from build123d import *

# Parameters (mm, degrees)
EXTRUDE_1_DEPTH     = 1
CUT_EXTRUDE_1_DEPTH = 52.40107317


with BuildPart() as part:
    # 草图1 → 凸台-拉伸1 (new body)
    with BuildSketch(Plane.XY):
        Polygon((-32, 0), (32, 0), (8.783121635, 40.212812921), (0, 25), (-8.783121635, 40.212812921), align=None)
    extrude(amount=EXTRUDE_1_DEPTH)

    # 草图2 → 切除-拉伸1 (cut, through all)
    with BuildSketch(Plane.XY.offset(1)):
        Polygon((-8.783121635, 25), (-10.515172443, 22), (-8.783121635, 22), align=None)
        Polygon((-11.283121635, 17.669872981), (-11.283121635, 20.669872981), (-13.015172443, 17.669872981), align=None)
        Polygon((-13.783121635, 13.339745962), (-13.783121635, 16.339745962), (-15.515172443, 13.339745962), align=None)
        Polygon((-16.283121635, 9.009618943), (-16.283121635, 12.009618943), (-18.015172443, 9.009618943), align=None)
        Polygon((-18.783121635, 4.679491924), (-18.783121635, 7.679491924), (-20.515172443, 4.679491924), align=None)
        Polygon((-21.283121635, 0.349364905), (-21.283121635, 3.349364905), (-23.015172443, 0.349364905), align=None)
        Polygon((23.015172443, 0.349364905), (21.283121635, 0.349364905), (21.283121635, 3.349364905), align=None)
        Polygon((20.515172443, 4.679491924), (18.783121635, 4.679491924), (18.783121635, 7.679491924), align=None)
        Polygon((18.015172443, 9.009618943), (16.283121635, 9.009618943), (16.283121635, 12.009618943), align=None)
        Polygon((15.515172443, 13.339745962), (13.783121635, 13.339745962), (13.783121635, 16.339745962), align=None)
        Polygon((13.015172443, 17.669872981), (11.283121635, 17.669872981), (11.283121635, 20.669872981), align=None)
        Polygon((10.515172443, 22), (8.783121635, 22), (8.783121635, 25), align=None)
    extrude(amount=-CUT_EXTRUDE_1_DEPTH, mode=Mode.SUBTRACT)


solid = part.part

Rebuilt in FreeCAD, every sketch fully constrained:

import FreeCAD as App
import Part
import Sketcher

V = App.Vector
Q = App.Units.Quantity

doc = App.newDocument("Part")
body = doc.addObject("PartDesign::Body", "Body")

sketch1 = doc.addObject("Sketcher::SketchObject", "Sketch")
body.addObject(sketch1)
sketch1.AttachmentSupport = (doc.XY_Plane, [""])
sketch1.MapMode = "FlatFace"
sketch1.addGeometry([
    Part.LineSegment(V(-32, 0, 0), V(32, 0, 0)),
    Part.LineSegment(V(32, 0, 0), V(9, 40, 0)),
    Part.LineSegment(V(9, 40, 0), V(0, 25, 0)),
    Part.LineSegment(V(0, 25, 0), V(-9, 40, 0)),
    Part.LineSegment(V(-9, 40, 0), V(-32, 0, 0)),
], False)
sketch1.addConstraint([
    Sketcher.Constraint("Coincident", 0, 2, 1, 1),
    Sketcher.Constraint("Coincident", 1, 2, 2, 1),
    Sketcher.Constraint("Coincident", 2, 2, 3, 1),
    Sketcher.Constraint("Coincident", 3, 2, 4, 1),
    Sketcher.Constraint("Coincident", 4, 2, 0, 1),
    Sketcher.Constraint("Horizontal", 0),
    Sketcher.Constraint("Symmetric", 0, 2, 4, 2, -1, 1),
    Sketcher.Constraint("Symmetric", 1, 2, 3, 2, -2),
    Sketcher.Constraint("PointOnObject", 2, 2, -2),
    Sketcher.Constraint("Parallel", 1, 3),
    Sketcher.Constraint("DistanceX", 0, 1, 0, 2, Q("64 mm")),
    Sketcher.Constraint("Angle", 1, Q("120 deg")),
    Sketcher.Constraint("DistanceY", -1, 1, 2, 2, Q("25 mm")),
])
pad1 = doc.addObject("PartDesign::Pad", "Pad")
body.addObject(pad1)
pad1.Profile = sketch1
pad1.Length = 1

sketch2 = doc.addObject("Sketcher::SketchObject", "Sketch001")
body.addObject(sketch2)
sketch2.AttachmentSupport = (doc.XY_Plane, [""])
sketch2.MapMode = "FlatFace"
sketch2.AttachmentOffset = App.Placement(V(0, 0, 1), App.Rotation())
sketch2.addGeometry([
    Part.LineSegment(V(-8.8, 25, 0), V(-10.5, 22, 0)),
    Part.LineSegment(V(-10.5, 22, 0), V(-8.8, 22, 0)),
    Part.LineSegment(V(-8.8, 22, 0), V(-8.8, 25, 0)),
    Part.LineSegment(V(-11.3, 17.7, 0), V(-11.3, 20.7, 0)),
    Part.LineSegment(V(-11.3, 20.7, 0), V(-13, 17.7, 0)),
    Part.LineSegment(V(-13, 17.7, 0), V(-11.3, 17.7, 0)),
    Part.LineSegment(V(-13.8, 13.3, 0), V(-13.8, 16.3, 0)),
    Part.LineSegment(V(-13.8, 16.3, 0), V(-15.5, 13.3, 0)),
    Part.LineSegment(V(-15.5, 13.3, 0), V(-13.8, 13.3, 0)),
    Part.LineSegment(V(-16.3, 9, 0), V(-16.3, 12, 0)),
    Part.LineSegment(V(-16.3, 12, 0), V(-18, 9, 0)),
    Part.LineSegment(V(-18, 9, 0), V(-16.3, 9, 0)),
    Part.LineSegment(V(-18.8, 4.7, 0), V(-18.8, 7.7, 0)),
    Part.LineSegment(V(-18.8, 7.7, 0), V(-20.5, 4.7, 0)),
    Part.LineSegment(V(-20.5, 4.7, 0), V(-18.8, 4.7, 0)),
    Part.LineSegment(V(-21.3, 0.3, 0), V(-21.3, 3.3, 0)),
    Part.LineSegment(V(-21.3, 3.3, 0), V(-23, 0.3, 0)),
    Part.LineSegment(V(-23, 0.3, 0), V(-21.3, 0.3, 0)),
    Part.LineSegment(V(21.3, 0.3, 0), V(23, 0.3, 0)),
    Part.LineSegment(V(23, 0.3, 0), V(21.3, 3.3, 0)),
    Part.LineSegment(V(21.3, 3.3, 0), V(21.3, 0.3, 0)),
    Part.LineSegment(V(18.8, 4.7, 0), V(20.5, 4.7, 0)),
    Part.LineSegment(V(20.5, 4.7, 0), V(18.8, 7.7, 0)),
    Part.LineSegment(V(18.8, 7.7, 0), V(18.8, 4.7, 0)),
    Part.LineSegment(V(16.3, 9, 0), V(18, 9, 0)),
    Part.LineSegment(V(18, 9, 0), V(16.3, 12, 0)),
    Part.LineSegment(V(16.3, 12, 0), V(16.3, 9, 0)),
    Part.LineSegment(V(13.8, 13.3, 0), V(15.5, 13.3, 0)),
    Part.LineSegment(V(15.5, 13.3, 0), V(13.8, 16.3, 0)),
    Part.LineSegment(V(13.8, 16.3, 0), V(13.8, 13.3, 0)),
    Part.LineSegment(V(11.3, 17.7, 0), V(13, 17.7, 0)),
    Part.LineSegment(V(13, 17.7, 0), V(11.3, 20.7, 0)),
    Part.LineSegment(V(11.3, 20.7, 0), V(11.3, 17.7, 0)),
    Part.LineSegment(V(8.8, 22, 0), V(10.5, 22, 0)),
    Part.LineSegment(V(10.5, 22, 0), V(8.8, 25, 0)),
    Part.LineSegment(V(8.8, 25, 0), V(8.8, 22, 0)),
], False)
sketch2.addConstraint([
    Sketcher.Constraint("Coincident", 0, 2, 1, 1),
    Sketcher.Constraint("Coincident", 1, 2, 2, 1),
    Sketcher.Constraint("Coincident", 2, 2, 0, 1),
    Sketcher.Constraint("Coincident", 3, 2, 4, 1),
    Sketcher.Constraint("Coincident", 4, 2, 5, 1),
    Sketcher.Constraint("Coincident", 5, 2, 3, 1),
    Sketcher.Constraint("Coincident", 6, 2, 7, 1),
    Sketcher.Constraint("Coincident", 7, 2, 8, 1),
    Sketcher.Constraint("Coincident", 8, 2, 6, 1),
    Sketcher.Constraint("Coincident", 9, 2, 10, 1),
    Sketcher.Constraint("Coincident", 10, 2, 11, 1),
    Sketcher.Constraint("Coincident", 11, 2, 9, 1),
    Sketcher.Constraint("Coincident", 12, 2, 13, 1),
    Sketcher.Constraint("Coincident", 13, 2, 14, 1),
    Sketcher.Constraint("Coincident", 14, 2, 12, 1),
    Sketcher.Constraint("Coincident", 15, 2, 16, 1),
    Sketcher.Constraint("Coincident", 16, 2, 17, 1),
    Sketcher.Constraint("Coincident", 17, 2, 15, 1),
    Sketcher.Constraint("Coincident", 18, 2, 19, 1),
    Sketcher.Constraint("Coincident", 19, 2, 20, 1),
    Sketcher.Constraint("Coincident", 20, 2, 18, 1),
    Sketcher.Constraint("Coincident", 21, 2, 22, 1),
    Sketcher.Constraint("Coincident", 22, 2, 23, 1),
    Sketcher.Constraint("Coincident", 23, 2, 21, 1),
    Sketcher.Constraint("Coincident", 24, 2, 25, 1),
    Sketcher.Constraint("Coincident", 25, 2, 26, 1),
    Sketcher.Constraint("Coincident", 26, 2, 24, 1),
    Sketcher.Constraint("Coincident", 27, 2, 28, 1),
    Sketcher.Constraint("Coincident", 28, 2, 29, 1),
    Sketcher.Constraint("Coincident", 29, 2, 27, 1),
    Sketcher.Constraint("Coincident", 30, 2, 31, 1),
    Sketcher.Constraint("Coincident", 31, 2, 32, 1),
    Sketcher.Constraint("Coincident", 32, 2, 30, 1),
    Sketcher.Constraint("Coincident", 33, 2, 34, 1),
    Sketcher.Constraint("Coincident", 34, 2, 35, 1),
    Sketcher.Constraint("Coincident", 35, 2, 33, 1),
    Sketcher.Constraint("Horizontal", 1),
    Sketcher.Constraint("Vertical", 2),
    Sketcher.Constraint("Vertical", 3),
    Sketcher.Constraint("Horizontal", 5),
    Sketcher.Constraint("Vertical", 6),
    Sketcher.Constraint("Horizontal", 8),
    Sketcher.Constraint("Vertical", 9),
    Sketcher.Constraint("Horizontal", 11),
    Sketcher.Constraint("Vertical", 12),
    Sketcher.Constraint("Horizontal", 14),
    Sketcher.Constraint("Vertical", 15),
    Sketcher.Constraint("Horizontal", 17),
    Sketcher.Constraint("Horizontal", 18),
    Sketcher.Constraint("Vertical", 20),
    Sketcher.Constraint("Horizontal", 21),
    Sketcher.Constraint("Vertical", 23),
    Sketcher.Constraint("Horizontal", 24),
    Sketcher.Constraint("Vertical", 26),
    Sketcher.Constraint("Horizontal", 27),
    Sketcher.Constraint("Vertical", 29),
    Sketcher.Constraint("Horizontal", 30),
    Sketcher.Constraint("Vertical", 32),
    Sketcher.Constraint("Horizontal", 33),
    Sketcher.Constraint("Vertical", 35),
    Sketcher.Constraint("Symmetric", 16, 2, 18, 2, -2),
    Sketcher.Constraint("Symmetric", 15, 2, 19, 2, -2),
    Sketcher.Constraint("Symmetric", 13, 2, 21, 2, -2),
    Sketcher.Constraint("Symmetric", 12, 2, 22, 2, -2),
    Sketcher.Constraint("Symmetric", 10, 2, 24, 2, -2),
    Sketcher.Constraint("Symmetric", 9, 2, 25, 2, -2),
    Sketcher.Constraint("Symmetric", 7, 2, 27, 2, -2),
    Sketcher.Constraint("Symmetric", 6, 2, 28, 2, -2),
    Sketcher.Constraint("Symmetric", 4, 2, 30, 2, -2),
    Sketcher.Constraint("Symmetric", 3, 2, 31, 2, -2),
    Sketcher.Constraint("Symmetric", 0, 2, 33, 2, -2),
    Sketcher.Constraint("Symmetric", 2, 2, 34, 2, -2),
    Sketcher.Constraint("Parallel", 0, 4),
    Sketcher.Constraint("Parallel", 4, 7),
    Sketcher.Constraint("Parallel", 7, 10),
    Sketcher.Constraint("Parallel", 10, 13),
    Sketcher.Constraint("Parallel", 13, 16),
    Sketcher.Constraint("Equal", 1, 5),
    Sketcher.Constraint("Equal", 5, 8),
    Sketcher.Constraint("Equal", 8, 11),
    Sketcher.Constraint("Equal", 11, 14),
    Sketcher.Constraint("Equal", 14, 17),
    Sketcher.Constraint("DistanceY", 2, 1, 2, 2, Q("3 mm")),
    Sketcher.Constraint("Angle", 0, Q("-120 deg")),
    Sketcher.Constraint("DistanceY", -1, 1, 0, 2, Q("22 mm")),
    Sketcher.Constraint("DistanceX", 6, 2, 1, 2, Q("5 mm")),
    Sketcher.Constraint("DistanceX", 9, 2, 5, 2, Q("5 mm")),
    Sketcher.Constraint("DistanceX", 12, 2, 8, 2, Q("5 mm")),
    Sketcher.Constraint("DistanceX", 15, 2, 11, 2, Q("5 mm")),
    Sketcher.Constraint("DistanceX", 3, 2, 1, 2, Q("2.5 mm")),
    Sketcher.Constraint("DistanceX", 1, 2, -1, 1, Q("8.783122 mm")),
    Sketcher.Constraint("DistanceY", -1, 1, 9, 2, Q("12.009619 mm")),
    Sketcher.Constraint("DistanceY", -1, 1, 12, 2, Q("7.679492 mm")),
    Sketcher.Constraint("DistanceY", 18, 2, 5, 2, Q("17.320508 mm")),
    Sketcher.Constraint("DistanceY", 18, 2, 8, 2, Q("12.990381 mm")),
    Sketcher.Constraint("DistanceY", 21, 2, 5, 2, Q("12.990381 mm")),
])
pocket1 = doc.addObject("PartDesign::Pocket", "Pocket")
body.addObject(pocket1)
pocket1.Profile = sketch2
pocket1.Type = "ThroughAll"

doc.recompute()
